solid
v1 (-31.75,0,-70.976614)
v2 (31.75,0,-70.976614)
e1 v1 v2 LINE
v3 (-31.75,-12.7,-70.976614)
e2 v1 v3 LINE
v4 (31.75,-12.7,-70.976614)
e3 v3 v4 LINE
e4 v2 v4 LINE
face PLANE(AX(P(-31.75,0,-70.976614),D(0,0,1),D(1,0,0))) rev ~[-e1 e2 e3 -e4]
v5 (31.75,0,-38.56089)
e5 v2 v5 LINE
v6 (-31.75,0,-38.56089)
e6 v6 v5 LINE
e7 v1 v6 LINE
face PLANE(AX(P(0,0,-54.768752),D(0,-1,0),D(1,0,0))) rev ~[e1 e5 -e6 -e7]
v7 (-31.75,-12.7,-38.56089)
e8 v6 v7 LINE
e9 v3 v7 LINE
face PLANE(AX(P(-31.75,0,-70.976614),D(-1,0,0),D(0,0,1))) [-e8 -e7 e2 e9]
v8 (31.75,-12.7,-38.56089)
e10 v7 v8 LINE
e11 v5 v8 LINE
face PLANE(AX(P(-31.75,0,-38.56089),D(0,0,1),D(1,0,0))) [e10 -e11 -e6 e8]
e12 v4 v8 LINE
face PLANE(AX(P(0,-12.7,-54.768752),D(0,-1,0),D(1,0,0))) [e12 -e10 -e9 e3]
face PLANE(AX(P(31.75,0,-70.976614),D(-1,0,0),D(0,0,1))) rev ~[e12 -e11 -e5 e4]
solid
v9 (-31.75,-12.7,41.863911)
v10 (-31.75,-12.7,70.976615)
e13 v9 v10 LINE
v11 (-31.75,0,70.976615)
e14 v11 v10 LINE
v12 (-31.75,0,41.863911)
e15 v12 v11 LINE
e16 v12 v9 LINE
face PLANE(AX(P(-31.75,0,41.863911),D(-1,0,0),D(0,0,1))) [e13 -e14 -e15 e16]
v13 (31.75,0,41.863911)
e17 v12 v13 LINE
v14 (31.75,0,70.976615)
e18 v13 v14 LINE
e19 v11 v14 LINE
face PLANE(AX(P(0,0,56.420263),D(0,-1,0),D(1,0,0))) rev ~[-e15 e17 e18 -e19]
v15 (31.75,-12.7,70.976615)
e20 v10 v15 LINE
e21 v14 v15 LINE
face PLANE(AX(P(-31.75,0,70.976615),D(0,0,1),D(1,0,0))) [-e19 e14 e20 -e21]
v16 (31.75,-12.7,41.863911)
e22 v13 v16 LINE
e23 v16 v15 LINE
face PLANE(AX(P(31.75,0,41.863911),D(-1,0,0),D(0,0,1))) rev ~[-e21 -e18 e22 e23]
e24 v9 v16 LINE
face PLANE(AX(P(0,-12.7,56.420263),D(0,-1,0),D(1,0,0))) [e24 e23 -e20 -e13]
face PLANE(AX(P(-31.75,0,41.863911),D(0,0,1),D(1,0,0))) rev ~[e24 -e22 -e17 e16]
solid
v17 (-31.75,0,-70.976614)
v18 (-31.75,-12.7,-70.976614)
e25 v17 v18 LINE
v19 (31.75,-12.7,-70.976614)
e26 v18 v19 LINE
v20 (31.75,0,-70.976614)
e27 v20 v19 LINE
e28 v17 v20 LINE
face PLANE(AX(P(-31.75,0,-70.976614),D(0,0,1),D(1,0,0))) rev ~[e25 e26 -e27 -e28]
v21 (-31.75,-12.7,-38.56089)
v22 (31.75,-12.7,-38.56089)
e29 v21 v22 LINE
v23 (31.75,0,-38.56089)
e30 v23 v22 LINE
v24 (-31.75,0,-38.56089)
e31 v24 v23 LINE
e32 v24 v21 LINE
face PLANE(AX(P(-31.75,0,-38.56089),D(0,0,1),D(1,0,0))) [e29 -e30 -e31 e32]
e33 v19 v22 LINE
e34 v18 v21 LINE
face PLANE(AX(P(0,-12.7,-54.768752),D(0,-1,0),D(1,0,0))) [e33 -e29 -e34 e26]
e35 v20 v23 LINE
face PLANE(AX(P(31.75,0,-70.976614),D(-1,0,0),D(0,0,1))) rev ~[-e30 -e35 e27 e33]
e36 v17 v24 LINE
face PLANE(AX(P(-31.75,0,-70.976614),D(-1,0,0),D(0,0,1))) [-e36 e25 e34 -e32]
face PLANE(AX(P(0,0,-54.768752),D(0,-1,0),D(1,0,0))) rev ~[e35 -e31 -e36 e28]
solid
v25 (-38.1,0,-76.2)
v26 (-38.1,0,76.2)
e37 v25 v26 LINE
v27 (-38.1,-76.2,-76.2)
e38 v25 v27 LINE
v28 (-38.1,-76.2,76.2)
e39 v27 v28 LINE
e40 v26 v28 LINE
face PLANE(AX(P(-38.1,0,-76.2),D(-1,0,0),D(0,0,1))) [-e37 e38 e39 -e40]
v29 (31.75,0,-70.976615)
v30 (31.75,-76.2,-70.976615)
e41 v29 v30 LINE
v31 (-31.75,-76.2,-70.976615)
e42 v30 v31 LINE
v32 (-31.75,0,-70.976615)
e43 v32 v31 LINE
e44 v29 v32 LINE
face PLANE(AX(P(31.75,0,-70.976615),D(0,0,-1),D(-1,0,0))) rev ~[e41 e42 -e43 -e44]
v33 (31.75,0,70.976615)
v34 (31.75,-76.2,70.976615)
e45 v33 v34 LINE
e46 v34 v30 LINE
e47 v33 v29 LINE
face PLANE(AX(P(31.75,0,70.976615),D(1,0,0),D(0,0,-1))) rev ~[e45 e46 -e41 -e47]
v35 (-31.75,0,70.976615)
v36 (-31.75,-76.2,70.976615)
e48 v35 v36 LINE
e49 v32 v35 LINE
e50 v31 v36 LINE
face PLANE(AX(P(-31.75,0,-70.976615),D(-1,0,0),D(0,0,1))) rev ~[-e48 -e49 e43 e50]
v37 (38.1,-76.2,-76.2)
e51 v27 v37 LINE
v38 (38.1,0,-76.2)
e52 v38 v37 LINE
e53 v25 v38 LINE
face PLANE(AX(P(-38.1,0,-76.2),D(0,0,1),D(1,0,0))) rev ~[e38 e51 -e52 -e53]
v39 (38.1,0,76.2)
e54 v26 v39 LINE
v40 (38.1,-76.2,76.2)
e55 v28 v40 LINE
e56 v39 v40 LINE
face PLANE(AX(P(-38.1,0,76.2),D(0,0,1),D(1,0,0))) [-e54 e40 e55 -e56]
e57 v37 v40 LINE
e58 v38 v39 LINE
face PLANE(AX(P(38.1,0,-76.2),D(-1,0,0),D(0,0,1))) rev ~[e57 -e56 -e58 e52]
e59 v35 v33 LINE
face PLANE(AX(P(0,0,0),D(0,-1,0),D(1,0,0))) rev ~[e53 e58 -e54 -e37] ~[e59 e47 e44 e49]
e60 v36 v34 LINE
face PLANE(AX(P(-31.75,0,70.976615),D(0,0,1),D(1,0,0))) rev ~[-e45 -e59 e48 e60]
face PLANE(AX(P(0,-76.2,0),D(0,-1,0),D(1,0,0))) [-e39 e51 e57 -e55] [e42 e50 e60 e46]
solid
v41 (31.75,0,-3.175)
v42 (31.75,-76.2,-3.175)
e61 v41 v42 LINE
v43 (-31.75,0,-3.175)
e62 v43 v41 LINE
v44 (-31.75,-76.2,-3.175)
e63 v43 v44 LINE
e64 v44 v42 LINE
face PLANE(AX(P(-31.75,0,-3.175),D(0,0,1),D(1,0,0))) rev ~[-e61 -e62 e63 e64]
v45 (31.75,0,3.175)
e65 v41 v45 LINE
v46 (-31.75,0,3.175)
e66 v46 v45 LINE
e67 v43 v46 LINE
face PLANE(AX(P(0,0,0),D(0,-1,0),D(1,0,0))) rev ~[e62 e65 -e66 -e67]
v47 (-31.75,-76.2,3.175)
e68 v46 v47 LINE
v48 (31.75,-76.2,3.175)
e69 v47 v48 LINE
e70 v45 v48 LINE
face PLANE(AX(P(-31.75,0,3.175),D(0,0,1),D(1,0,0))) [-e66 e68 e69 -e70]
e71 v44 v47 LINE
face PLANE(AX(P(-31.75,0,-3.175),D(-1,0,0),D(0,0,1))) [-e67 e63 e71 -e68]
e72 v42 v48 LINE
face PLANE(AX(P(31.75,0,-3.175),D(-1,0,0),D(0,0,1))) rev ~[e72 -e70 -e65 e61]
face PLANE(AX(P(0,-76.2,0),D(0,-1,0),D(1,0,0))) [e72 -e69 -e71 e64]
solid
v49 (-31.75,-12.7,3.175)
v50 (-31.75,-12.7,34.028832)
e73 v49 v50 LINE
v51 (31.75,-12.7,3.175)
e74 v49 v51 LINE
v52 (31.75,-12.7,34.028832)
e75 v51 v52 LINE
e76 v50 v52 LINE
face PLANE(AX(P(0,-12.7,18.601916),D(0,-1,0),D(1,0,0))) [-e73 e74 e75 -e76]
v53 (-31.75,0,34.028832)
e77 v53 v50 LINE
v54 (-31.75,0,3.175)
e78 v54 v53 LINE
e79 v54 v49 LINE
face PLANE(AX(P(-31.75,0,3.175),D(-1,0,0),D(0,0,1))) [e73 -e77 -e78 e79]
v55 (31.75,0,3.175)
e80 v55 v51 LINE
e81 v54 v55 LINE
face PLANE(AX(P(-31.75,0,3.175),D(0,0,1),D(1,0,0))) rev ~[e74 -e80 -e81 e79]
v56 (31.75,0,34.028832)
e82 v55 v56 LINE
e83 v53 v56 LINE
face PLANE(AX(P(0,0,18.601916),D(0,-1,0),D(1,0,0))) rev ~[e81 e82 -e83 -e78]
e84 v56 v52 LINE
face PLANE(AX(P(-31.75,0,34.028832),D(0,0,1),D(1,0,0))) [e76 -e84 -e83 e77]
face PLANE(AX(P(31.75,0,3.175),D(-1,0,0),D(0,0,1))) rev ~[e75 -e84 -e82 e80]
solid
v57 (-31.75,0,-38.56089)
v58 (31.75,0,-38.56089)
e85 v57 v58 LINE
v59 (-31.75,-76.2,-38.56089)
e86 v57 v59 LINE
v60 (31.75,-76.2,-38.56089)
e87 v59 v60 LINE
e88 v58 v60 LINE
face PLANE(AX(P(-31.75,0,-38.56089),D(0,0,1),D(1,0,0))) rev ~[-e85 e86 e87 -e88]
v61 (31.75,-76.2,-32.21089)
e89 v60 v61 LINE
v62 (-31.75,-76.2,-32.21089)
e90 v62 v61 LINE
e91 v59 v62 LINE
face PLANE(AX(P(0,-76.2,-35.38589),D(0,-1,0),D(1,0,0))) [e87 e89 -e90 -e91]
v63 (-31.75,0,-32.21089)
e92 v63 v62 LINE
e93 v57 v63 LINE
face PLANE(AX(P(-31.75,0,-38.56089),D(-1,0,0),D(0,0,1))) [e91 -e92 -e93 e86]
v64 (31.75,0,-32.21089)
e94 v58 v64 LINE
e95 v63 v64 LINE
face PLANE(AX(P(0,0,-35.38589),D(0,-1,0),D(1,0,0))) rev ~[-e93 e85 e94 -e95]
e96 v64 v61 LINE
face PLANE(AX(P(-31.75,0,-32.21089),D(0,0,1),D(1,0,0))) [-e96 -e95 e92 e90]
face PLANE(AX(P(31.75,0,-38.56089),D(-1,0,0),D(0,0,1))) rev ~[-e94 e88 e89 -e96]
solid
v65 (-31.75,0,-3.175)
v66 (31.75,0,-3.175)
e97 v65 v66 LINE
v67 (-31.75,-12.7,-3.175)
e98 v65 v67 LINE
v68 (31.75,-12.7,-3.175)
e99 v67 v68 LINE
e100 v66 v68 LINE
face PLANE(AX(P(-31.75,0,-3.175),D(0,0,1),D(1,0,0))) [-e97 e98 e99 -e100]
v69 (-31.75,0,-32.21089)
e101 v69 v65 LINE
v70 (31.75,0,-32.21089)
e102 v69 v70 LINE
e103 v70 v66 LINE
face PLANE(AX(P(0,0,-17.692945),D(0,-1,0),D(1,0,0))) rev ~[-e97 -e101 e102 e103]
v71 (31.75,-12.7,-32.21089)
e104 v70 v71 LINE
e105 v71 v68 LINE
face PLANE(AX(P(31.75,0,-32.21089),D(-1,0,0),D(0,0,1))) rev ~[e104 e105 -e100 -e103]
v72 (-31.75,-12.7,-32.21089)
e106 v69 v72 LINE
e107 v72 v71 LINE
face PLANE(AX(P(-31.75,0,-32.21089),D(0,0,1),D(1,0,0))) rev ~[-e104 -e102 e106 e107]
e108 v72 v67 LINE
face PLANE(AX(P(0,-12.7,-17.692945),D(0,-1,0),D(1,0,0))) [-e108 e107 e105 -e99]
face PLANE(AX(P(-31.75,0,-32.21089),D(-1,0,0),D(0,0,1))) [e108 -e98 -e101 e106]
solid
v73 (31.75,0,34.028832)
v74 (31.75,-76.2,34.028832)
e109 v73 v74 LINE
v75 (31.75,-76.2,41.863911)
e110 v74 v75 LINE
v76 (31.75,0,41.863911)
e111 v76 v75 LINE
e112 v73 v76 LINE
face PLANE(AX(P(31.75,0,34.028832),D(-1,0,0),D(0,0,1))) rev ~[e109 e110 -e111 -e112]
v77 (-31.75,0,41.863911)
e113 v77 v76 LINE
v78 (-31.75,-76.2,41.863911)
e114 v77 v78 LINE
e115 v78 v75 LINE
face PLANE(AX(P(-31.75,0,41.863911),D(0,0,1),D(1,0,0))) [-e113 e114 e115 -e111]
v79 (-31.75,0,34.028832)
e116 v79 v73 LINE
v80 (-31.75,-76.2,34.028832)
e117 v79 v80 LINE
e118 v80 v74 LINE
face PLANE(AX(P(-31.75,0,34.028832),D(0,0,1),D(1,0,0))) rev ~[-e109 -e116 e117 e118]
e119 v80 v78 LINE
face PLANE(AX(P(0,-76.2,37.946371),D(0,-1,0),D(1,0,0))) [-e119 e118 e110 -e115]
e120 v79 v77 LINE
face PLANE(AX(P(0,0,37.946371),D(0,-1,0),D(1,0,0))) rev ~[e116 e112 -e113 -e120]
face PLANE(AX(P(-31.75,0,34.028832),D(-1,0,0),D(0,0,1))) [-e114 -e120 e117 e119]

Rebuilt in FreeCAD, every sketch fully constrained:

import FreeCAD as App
import Part
import Sketcher
Q = App.Units.Quantity

doc = App.newDocument("Part")
body = doc.addObject("PartDesign::Body", "Body")

sketch1 = body.newObject("Sketcher::SketchObject", "Sketch")
sketch1.AttachmentSupport = (doc.getObject("XZ_Plane"), [""])
sketch1.MapMode = "FlatFace"
sketch1.addGeometry([
    Part.LineSegment(App.Vector(-38, 76, 0), App.Vector(-38, -76, 0)),
    Part.LineSegment(App.Vector(-38, -76, 0), App.Vector(38, -76, 0)),
    Part.LineSegment(App.Vector(38, -76, 0), App.Vector(38, 76, 0)),
    Part.LineSegment(App.Vector(38, 76, 0), App.Vector(-38, 76, 0)),
    Part.LineSegment(App.Vector(-32, -71, 0), App.Vector(-32, 71, 0)),
    Part.LineSegment(App.Vector(-32, 71, 0), App.Vector(32, 71, 0)),
    Part.LineSegment(App.Vector(32, 71, 0), App.Vector(32, -71, 0)),
    Part.LineSegment(App.Vector(32, -71, 0), App.Vector(-32, -71, 0)),
], False)
sketch1.addConstraint([
    Sketcher.Constraint("Coincident", 0, 2, 1, 1),
    Sketcher.Constraint("Coincident", 1, 2, 2, 1),
    Sketcher.Constraint("Coincident", 2, 2, 3, 1),
    Sketcher.Constraint("Coincident", 3, 2, 0, 1),
    Sketcher.Constraint("Coincident", 4, 2, 5, 1),
    Sketcher.Constraint("Coincident", 5, 2, 6, 1),
    Sketcher.Constraint("Coincident", 6, 2, 7, 1),
    Sketcher.Constraint("Coincident", 7, 2, 4, 1),
    Sketcher.Constraint("Vertical", 0),
    Sketcher.Constraint("Horizontal", 1),
    Sketcher.Constraint("Vertical", 2),
    Sketcher.Constraint("Horizontal", 3),
    Sketcher.Constraint("Vertical", 4),
    Sketcher.Constraint("Horizontal", 5),
    Sketcher.Constraint("Vertical", 6),
    Sketcher.Constraint("Horizontal", 7),
    Sketcher.Constraint("Symmetric", 0, 2, 2, 2, -1, 1),
    Sketcher.Constraint("Symmetric", 4, 2, 6, 2, -1, 1),
    Sketcher.Constraint("DistanceX", 1, 1, 1, 2, Q("3 in")),
    Sketcher.Constraint("DistanceY", 0, 2, 0, 1, Q("6 in")),
    Sketcher.Constraint("DistanceX", 5, 1, 5, 2, Q("2.5 in")),
    Sketcher.Constraint("DistanceY", 4, 1, 4, 2, Q("141.95323 mm")),
])
pad1 = body.newObject("PartDesign::Pad", "Pad")
pad1.Profile = sketch1
pad1.Length = Q("3 in")
body2 = doc.addObject("PartDesign::Body", "Body001")

sketch2 = body2.newObject("Sketcher::SketchObject", "Sketch001")
sketch2.AttachmentSupport = (doc.getObject("XZ_Plane001"), [""])
sketch2.MapMode = "FlatFace"
sketch2.addGeometry([
    Part.LineSegment(App.Vector(-32, 71, 0), App.Vector(-32, 42, 0)),
    Part.LineSegment(App.Vector(-32, 42, 0), App.Vector(32, 42, 0)),
    Part.LineSegment(App.Vector(32, 42, 0), App.Vector(32, 71, 0)),
    Part.LineSegment(App.Vector(32, 71, 0), App.Vector(-32, 71, 0)),
], False)
sketch2.addConstraint([
    Sketcher.Constraint("Coincident", 0, 2, 1, 1),
    Sketcher.Constraint("Coincident", 1, 2, 2, 1),
    Sketcher.Constraint("Coincident", 2, 2, 3, 1),
    Sketcher.Constraint("Coincident", 3, 2, 0, 1),
    Sketcher.Constraint("Vertical", 0),
    Sketcher.Constraint("Horizontal", 1),
    Sketcher.Constraint("Vertical", 2),
    Sketcher.Constraint("Horizontal", 3),
    Sketcher.Constraint("DistanceX", 1, 1, 1, 2, Q("2.5 in")),
    Sketcher.Constraint("DistanceX", 0, 2, -1, 1, Q("1.25 in")),
    Sketcher.Constraint("DistanceY", 0, 2, 0, 1, Q("29.112704 mm")),
    Sketcher.Constraint("DistanceY", -1, 1, 0, 2, Q("41.863911 mm")),
])
pad2 = body2.newObject("PartDesign::Pad", "Pad001")
pad2.Profile = sketch2
pad2.Length = Q("0.5 in")
body3 = doc.addObject("PartDesign::Body", "Body002")

sketch3 = body3.newObject("Sketcher::SketchObject", "Sketch002")
sketch3.AttachmentSupport = (doc.getObject("XZ_Plane002"), [""])
sketch3.MapMode = "FlatFace"
sketch3.addGeometry([
    Part.LineSegment(App.Vector(-32, 3, 0), App.Vector(-32, -3, 0)),
    Part.LineSegment(App.Vector(-32, -3, 0), App.Vector(32, -3, 0)),
    Part.LineSegment(App.Vector(32, -3, 0), App.Vector(32, 3, 0)),
    Part.LineSegment(App.Vector(32, 3, 0), App.Vector(-32, 3, 0)),
], False)
sketch3.addConstraint([
    Sketcher.Constraint("Coincident", 0, 2, 1, 1),
    Sketcher.Constraint("Coincident", 1, 2, 2, 1),
    Sketcher.Constraint("Coincident", 2, 2, 3, 1),
    Sketcher.Constraint("Coincident", 3, 2, 0, 1),
    Sketcher.Constraint("Vertical", 0),
    Sketcher.Constraint("Horizontal", 1),
    Sketcher.Constraint("Vertical", 2),
    Sketcher.Constraint("Horizontal", 3),
    Sketcher.Constraint("Symmetric", 0, 2, 2, 2, -1, 1),
    Sketcher.Constraint("DistanceX", 1, 1, 1, 2, Q("2.5 in")),
    Sketcher.Constraint("DistanceY", 0, 2, 0, 1, Q("0.25 in")),
])
pad3 = body3.newObject("PartDesign::Pad", "Pad002")
pad3.Profile = sketch3
pad3.Length = Q("3 in")
body4 = doc.addObject("PartDesign::Body", "Body003")

sketch4 = body4.newObject("Sketcher::SketchObject", "Sketch003")
sketch4.AttachmentSupport = (doc.getObject("XZ_Plane003"), [""])
sketch4.MapMode = "FlatFace"
sketch4.addGeometry([
    Part.LineSegment(App.Vector(-32, -39, 0), App.Vector(-32, -71, 0)),
    Part.LineSegment(App.Vector(-32, -71, 0), App.Vector(32, -71, 0)),
    Part.LineSegment(App.Vector(32, -71, 0), App.Vector(32, -39, 0)),
    Part.LineSegment(App.Vector(32, -39, 0), App.Vector(-32, -39, 0)),
], False)
sketch4.addConstraint([
    Sketcher.Constraint("Coincident", 0, 2, 1, 1),
    Sketcher.Constraint("Coincident", 1, 2, 2, 1),
    Sketcher.Constraint("Coincident", 2, 2, 3, 1),
    Sketcher.Constraint("Coincident", 3, 2, 0, 1),
    Sketcher.Constraint("Vertical", 0),
    Sketcher.Constraint("Horizontal", 1),
    Sketcher.Constraint("Vertical", 2),
    Sketcher.Constraint("Horizontal", 3),
    Sketcher.Constraint("DistanceX", 1, 1, 1, 2, Q("2.5 in")),
    Sketcher.Constraint("DistanceX", 0, 2, -1, 1, Q("1.25 in")),
    Sketcher.Constraint("DistanceY", 0, 2, 0, 1, Q("32.415725 mm")),
    Sketcher.Constraint("DistanceY", 2, 2, -1, 1, Q("38.56089 mm")),
])
pad4 = body4.newObject("PartDesign::Pad", "Pad003")
pad4.Profile = sketch4
pad4.Length = Q("0.5 in")
body5 = doc.addObject("PartDesign::Body", "Body004")
body5.AllowCompound = True

sketch5 = body5.newObject("Sketcher::SketchObject", "Sketch004")
sketch5.AttachmentSupport = (doc.getObject("XZ_Plane004"), [""])
sketch5.MapMode = "FlatFace"
sketch5.addGeometry([
    Part.LineSegment(App.Vector(-32, -32, 0), App.Vector(-32, -39, 0)),
    Part.LineSegment(App.Vector(-32, -39, 0), App.Vector(32, -39, 0)),
    Part.LineSegment(App.Vector(32, -39, 0), App.Vector(32, -32, 0)),
    Part.LineSegment(App.Vector(32, -32, 0), App.Vector(-32, -32, 0)),
    Part.LineSegment(App.Vector(-32, 42, 0), App.Vector(-32, 34, 0)),
    Part.LineSegment(App.Vector(-32, 34, 0), App.Vector(32, 34, 0)),
    Part.LineSegment(App.Vector(32, 34, 0), App.Vector(32, 42, 0)),
    Part.LineSegment(App.Vector(32, 42, 0), App.Vector(-32, 42, 0)),
], False)
sketch5.addConstraint([
    Sketcher.Constraint("Coincident", 0, 2, 1, 1),
    Sketcher.Constraint("Coincident", 1, 2, 2, 1),
    Sketcher.Constraint("Coincident", 2, 2, 3, 1),
    Sketcher.Constraint("Coincident", 3, 2, 0, 1),
    Sketcher.Constraint("Coincident", 4, 2, 5, 1),
    Sketcher.Constraint("Coincident", 5, 2, 6, 1),
    Sketcher.Constraint("Coincident", 6, 2, 7, 1),
    Sketcher.Constraint("Coincident", 7, 2, 4, 1),
    Sketcher.Constraint("Vertical", 0),
    Sketcher.Constraint("Horizontal", 1),
    Sketcher.Constraint("Vertical", 2),
    Sketcher.Constraint("Horizontal", 3),
    Sketcher.Constraint("Vertical", 4),
    Sketcher.Constraint("Horizontal", 5),
    Sketcher.Constraint("Vertical", 6),
    Sketcher.Constraint("Horizontal", 7),
    Sketcher.Constraint("Vertical", 3, 2, 4, 2),
    Sketcher.Constraint("Vertical", 2, 2, 5, 2),
    Sketcher.Constraint("DistanceX", 1, 1, 1, 2, Q("2.5 in")),
    Sketcher.Constraint("DistanceY", 0, 2, 0, 1, Q("0.25 in")),
    Sketcher.Constraint("DistanceX", 0, 2, -1, 1, Q("1.25 in")),
    Sketcher.Constraint("DistanceY", 4, 2, 4, 1, Q("7.835079 mm")),
    Sketcher.Constraint("DistanceY", 2, 2, 6, 2, Q("74.074801 mm")),
    Sketcher.Constraint("DistanceY", 0, 2, -1, 1, Q("38.56089 mm")),
])
pad5 = body5.newObject("PartDesign::Pad", "Pad004")
pad5.Profile = sketch5
pad5.Length = Q("3 in")
body6 = doc.addObject("PartDesign::Body", "Body005")
body6.AllowCompound = True

sketch6 = body6.newObject("Sketcher::SketchObject", "Sketch005")
sketch6.AttachmentSupport = (doc.getObject("XZ_Plane005"), [""])
sketch6.MapMode = "FlatFace"
sketch6.addGeometry([
    Part.LineSegment(App.Vector(-32, 34, 0), App.Vector(-32, 3, 0)),
    Part.LineSegment(App.Vector(-32, 3, 0), App.Vector(32, 3, 0)),
    Part.LineSegment(App.Vector(32, 3, 0), App.Vector(32, 34, 0)),
    Part.LineSegment(App.Vector(32, 34, 0), App.Vector(-32, 34, 0)),
    Part.LineSegment(App.Vector(-32, -39, 0), App.Vector(-32, -71, 0)),
    Part.LineSegment(App.Vector(-32, -71, 0), App.Vector(32, -71, 0)),
    Part.LineSegment(App.Vector(32, -71, 0), App.Vector(32, -39, 0)),
    Part.LineSegment(App.Vector(32, -39, 0), App.Vector(-32, -39, 0)),
], False)
sketch6.addConstraint([
    Sketcher.Constraint("Coincident", 0, 2, 1, 1),
    Sketcher.Constraint("Coincident", 1, 2, 2, 1),
    Sketcher.Constraint("Coincident", 2, 2, 3, 1),
    Sketcher.Constraint("Coincident", 3, 2, 0, 1),
    Sketcher.Constraint("Coincident", 4, 2, 5, 1),
    Sketcher.Constraint("Coincident", 5, 2, 6, 1),
    Sketcher.Constraint("Coincident", 6, 2, 7, 1),
    Sketcher.Constraint("Coincident", 7, 2, 4, 1),
    Sketcher.Constraint("Vertical", 0),
    Sketcher.Constraint("Horizontal", 1),
    Sketcher.Constraint("Vertical", 2),
    Sketcher.Constraint("Horizontal", 3),
    Sketcher.Constraint("Vertical", 4),
    Sketcher.Constraint("Horizontal", 5),
    Sketcher.Constraint("Vertical", 6),
    Sketcher.Constraint("Horizontal", 7),
    Sketcher.Constraint("Vertical", 3, 2, 4, 2),
    Sketcher.Constraint("Vertical", 2, 2, 5, 2),
    Sketcher.Constraint("DistanceX", 1, 1, 1, 2, Q("2.5 in")),
    Sketcher.Constraint("DistanceX", 0, 2, -1, 1, Q("1.25 in")),
    Sketcher.Constraint("DistanceY", -1, 1, 0, 2, Q("0.125 in")),
    Sketcher.Constraint("DistanceY", 0, 2, 0, 1, Q("30.853832 mm")),
    Sketcher.Constraint("DistanceY", 4, 2, 4, 1, Q("32.415725 mm")),
    Sketcher.Constraint("DistanceY", 6, 2, -1, 1, Q("38.56089 mm")),
])
pad6 = body6.newObject("PartDesign::Pad", "Pad005")
pad6.Profile = sketch6
pad6.Length = Q("0.5 in")
body7 = doc.addObject("PartDesign::Body", "Body006")

sketch7 = body7.newObject("Sketcher::SketchObject", "Sketch006")
sketch7.AttachmentSupport = (doc.getObject("XZ_Plane006"), [""])
sketch7.MapMode = "FlatFace"
sketch7.addGeometry([
    Part.LineSegment(App.Vector(-32, -3, 0), App.Vector(-32, -32, 0)),
    Part.LineSegment(App.Vector(-32, -32, 0), App.Vector(32, -32, 0)),
    Part.LineSegment(App.Vector(32, -32, 0), App.Vector(32, -3, 0)),
    Part.LineSegment(App.Vector(32, -3, 0), App.Vector(-32, -3, 0)),
], False)
sketch7.addConstraint([
    Sketcher.Constraint("Coincident", 0, 2, 1, 1),
    Sketcher.Constraint("Coincident", 1, 2, 2, 1),
    Sketcher.Constraint("Coincident", 2, 2, 3, 1),
    Sketcher.Constraint("Coincident", 3, 2, 0, 1),
    Sketcher.Constraint("Vertical", 0),
    Sketcher.Constraint("Horizontal", 1),
    Sketcher.Constraint("Vertical", 2),
    Sketcher.Constraint("Horizontal", 3),
    Sketcher.Constraint("DistanceX", 1, 1, 1, 2, Q("2.5 in")),
    Sketcher.Constraint("DistanceX", 0, 2, -1, 1, Q("1.25 in")),
    Sketcher.Constraint("DistanceY", 2, 2, -1, 1, Q("0.125 in")),
    Sketcher.Constraint("DistanceY", 0, 2, 0, 1, Q("29.03589 mm")),
])
pad7 = body7.newObject("PartDesign::Pad", "Pad006")
pad7.Profile = sketch7
pad7.Length = Q("0.5 in")

doc.recompute()
